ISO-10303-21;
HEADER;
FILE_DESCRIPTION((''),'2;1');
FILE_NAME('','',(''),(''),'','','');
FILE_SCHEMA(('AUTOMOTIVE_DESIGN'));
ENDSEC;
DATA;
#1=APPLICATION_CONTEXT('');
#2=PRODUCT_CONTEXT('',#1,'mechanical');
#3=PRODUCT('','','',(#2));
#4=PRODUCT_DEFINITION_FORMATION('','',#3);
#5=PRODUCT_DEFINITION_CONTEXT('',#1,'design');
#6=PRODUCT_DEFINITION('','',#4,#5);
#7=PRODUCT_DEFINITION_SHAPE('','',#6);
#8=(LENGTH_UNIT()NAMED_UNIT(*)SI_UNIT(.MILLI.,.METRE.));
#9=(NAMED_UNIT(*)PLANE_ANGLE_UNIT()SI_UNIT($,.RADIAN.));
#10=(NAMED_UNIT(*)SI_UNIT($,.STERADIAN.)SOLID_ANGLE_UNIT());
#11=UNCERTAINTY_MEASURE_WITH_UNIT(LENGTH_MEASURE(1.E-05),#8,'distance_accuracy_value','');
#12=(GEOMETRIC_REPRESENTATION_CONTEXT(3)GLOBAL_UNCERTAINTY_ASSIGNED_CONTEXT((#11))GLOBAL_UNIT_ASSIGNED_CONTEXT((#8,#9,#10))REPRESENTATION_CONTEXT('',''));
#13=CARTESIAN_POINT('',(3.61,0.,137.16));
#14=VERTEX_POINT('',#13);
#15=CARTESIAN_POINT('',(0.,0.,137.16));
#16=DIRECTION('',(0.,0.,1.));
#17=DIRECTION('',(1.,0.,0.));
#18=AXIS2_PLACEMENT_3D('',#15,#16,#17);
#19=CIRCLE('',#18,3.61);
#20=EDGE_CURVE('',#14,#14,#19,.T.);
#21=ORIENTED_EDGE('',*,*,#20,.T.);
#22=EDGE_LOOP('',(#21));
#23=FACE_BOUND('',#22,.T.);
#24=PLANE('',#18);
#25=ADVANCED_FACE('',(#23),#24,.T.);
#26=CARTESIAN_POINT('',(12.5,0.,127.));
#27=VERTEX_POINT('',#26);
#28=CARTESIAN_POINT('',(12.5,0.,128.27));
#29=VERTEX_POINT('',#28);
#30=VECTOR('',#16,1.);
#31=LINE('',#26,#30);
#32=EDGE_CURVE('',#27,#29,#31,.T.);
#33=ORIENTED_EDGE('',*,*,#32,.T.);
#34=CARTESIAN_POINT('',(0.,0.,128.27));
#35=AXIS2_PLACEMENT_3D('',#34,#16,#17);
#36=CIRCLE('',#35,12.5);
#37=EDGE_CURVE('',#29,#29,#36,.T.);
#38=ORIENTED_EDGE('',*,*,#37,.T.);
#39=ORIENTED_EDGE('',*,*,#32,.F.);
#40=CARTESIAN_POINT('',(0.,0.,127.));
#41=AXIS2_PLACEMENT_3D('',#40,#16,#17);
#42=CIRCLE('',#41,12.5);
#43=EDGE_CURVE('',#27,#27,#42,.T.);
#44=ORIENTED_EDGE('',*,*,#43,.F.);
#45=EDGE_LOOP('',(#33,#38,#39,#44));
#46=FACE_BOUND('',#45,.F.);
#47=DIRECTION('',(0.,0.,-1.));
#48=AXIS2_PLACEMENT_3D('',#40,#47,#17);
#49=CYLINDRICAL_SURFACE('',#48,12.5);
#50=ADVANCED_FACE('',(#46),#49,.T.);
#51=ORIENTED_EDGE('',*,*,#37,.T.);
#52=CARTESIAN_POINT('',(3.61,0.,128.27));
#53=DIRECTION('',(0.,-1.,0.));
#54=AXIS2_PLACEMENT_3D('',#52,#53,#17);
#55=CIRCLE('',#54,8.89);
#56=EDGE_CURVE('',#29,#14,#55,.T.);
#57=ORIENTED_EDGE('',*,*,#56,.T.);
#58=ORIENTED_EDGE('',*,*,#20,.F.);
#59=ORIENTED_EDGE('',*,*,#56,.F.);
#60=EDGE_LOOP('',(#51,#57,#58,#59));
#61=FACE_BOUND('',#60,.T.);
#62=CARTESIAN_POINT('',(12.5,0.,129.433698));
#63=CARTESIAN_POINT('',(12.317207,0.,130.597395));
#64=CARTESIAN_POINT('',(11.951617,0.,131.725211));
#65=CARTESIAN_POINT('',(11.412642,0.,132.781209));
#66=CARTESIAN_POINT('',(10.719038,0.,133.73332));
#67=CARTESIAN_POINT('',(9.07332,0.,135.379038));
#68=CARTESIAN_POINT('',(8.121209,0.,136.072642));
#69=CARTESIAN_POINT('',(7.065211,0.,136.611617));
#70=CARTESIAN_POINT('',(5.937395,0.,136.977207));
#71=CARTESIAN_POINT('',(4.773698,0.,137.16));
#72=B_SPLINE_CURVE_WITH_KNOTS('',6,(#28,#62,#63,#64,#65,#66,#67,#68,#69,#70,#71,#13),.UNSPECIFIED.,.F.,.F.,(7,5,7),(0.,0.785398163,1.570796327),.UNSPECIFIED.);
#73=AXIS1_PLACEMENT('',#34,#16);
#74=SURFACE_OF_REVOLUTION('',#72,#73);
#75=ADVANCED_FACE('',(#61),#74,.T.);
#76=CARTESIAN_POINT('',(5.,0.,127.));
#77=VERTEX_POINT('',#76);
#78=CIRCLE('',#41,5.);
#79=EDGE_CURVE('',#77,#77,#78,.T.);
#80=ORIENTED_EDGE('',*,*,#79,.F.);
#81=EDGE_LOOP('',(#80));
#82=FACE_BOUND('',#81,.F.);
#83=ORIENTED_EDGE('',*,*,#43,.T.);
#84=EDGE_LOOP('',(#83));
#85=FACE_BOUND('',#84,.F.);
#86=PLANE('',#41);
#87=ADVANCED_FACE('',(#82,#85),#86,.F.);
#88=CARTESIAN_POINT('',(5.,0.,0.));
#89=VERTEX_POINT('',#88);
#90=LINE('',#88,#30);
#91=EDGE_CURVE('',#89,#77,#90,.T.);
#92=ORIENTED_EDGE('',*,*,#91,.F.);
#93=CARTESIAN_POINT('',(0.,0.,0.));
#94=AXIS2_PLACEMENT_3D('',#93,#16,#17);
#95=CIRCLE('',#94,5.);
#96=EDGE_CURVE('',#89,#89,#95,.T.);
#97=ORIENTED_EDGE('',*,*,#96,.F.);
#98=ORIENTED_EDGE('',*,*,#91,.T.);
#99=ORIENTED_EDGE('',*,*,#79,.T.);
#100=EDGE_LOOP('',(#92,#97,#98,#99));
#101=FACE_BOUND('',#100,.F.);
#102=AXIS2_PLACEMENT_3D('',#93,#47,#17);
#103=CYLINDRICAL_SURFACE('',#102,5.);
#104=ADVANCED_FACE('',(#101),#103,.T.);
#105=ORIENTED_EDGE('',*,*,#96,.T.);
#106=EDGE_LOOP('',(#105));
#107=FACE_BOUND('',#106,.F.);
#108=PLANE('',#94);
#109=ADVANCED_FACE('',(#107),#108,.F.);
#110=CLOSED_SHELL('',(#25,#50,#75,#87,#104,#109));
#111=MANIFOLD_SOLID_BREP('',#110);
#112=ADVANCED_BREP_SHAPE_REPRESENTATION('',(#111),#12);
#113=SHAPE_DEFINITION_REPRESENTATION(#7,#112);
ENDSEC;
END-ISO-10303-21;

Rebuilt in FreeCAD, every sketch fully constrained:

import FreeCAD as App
import Part
import Sketcher
from FreeCAD import Vector
Q = App.Units.Quantity


def edges_at(feature, points):
    """Names of the edges that pass closest to the given points."""
    edges = feature.Shape.Edges
    near = lambda p: min(range(len(edges)), key=lambda i: edges[i].distToShape(Part.Vertex(*p))[0])
    return sorted({f"Edge{near(p) + 1}" for p in points})

doc = App.newDocument("Part")
body = doc.addObject("PartDesign::Body", "Body")

sketch1 = body.newObject("Sketcher::SketchObject", "Sketch")
sketch1.AttachmentSupport = (doc.getObject("XY_Plane"), [""])
sketch1.MapMode = "FlatFace"
sketch1.addGeometry(Part.Circle(Vector(0, 0, 0), Vector(0, 0, 1), 5), False)
sketch1.addConstraint(Sketcher.Constraint("Coincident", 0, 3, -1, 1))
sketch1.addConstraint(Sketcher.Constraint("Diameter", 0, Q("10 mm")))
pad1 = body.newObject("PartDesign::Pad", "Pad")
pad1.Profile = sketch1
pad1.Length = Q("5 in")

sketch2 = body.newObject("Sketcher::SketchObject", "Sketch001")
sketch2.AttachmentSupport = (doc.getObject("XY_Plane"), [""])
sketch2.MapMode = "FlatFace"
sketch2.AttachmentOffset = App.Placement(Vector(0, 0, 5 * 25.4), App.Rotation())
sketch2.addGeometry(Part.Circle(Vector(0, 0, 0), Vector(0, 0, 1), 12), False)
sketch2.addConstraint(Sketcher.Constraint("Coincident", 0, 3, -1, 1))
sketch2.addConstraint(Sketcher.Constraint("Diameter", 0, Q("25 mm")))
pad2 = body.newObject("PartDesign::Pad", "Pad001")
pad2.Profile = sketch2
pad2.Length = Q("0.4 in")
doc.recompute()

fillet = body.newObject("PartDesign::Fillet", "Fillet")
fillet.Base = (pad2, edges_at(pad2, [(-12.5, 0, 137.16)]))
fillet.Radius = Q("0.35 in")

doc.recompute()
